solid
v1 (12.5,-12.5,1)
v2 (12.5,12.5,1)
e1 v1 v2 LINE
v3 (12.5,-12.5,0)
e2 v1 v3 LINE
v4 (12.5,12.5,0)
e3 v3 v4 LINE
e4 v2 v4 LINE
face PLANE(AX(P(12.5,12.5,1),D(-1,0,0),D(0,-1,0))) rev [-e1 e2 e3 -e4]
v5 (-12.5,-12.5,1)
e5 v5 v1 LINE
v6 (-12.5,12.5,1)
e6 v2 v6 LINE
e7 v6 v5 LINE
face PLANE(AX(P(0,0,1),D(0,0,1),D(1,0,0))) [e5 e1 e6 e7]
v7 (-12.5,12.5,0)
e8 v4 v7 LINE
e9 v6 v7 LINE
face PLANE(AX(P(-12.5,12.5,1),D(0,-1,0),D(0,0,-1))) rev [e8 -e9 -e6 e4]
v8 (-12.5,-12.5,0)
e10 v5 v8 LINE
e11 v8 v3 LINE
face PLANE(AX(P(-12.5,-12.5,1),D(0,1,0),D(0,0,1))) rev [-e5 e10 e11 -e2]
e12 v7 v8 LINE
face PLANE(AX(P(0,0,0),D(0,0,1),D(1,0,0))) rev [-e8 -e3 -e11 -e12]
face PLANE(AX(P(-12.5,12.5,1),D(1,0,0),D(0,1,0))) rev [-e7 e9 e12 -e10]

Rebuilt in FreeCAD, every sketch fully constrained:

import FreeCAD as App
import Part
import Sketcher

V = App.Vector

doc = App.newDocument("Part")
body = doc.addObject("PartDesign::Body", "Body")

# Sketch on XY plane
sketch1 = body.newObject("Sketcher::SketchObject", "Sketch")
sketch1.AttachmentSupport = (doc.getObject("XY_Plane"), [""])
sketch1.MapMode = "FlatFace"
sketch1.addGeometry([
    Part.LineSegment(V(-12, 12, 0), V(-12, -12, 0)),
    Part.LineSegment(V(-12, -12, 0), V(12, -12, 0)),
    Part.LineSegment(V(12, -12, 0), V(12, 12, 0)),
    Part.LineSegment(V(12, 12, 0), V(-12, 12, 0)),
], False)
sketch1.addConstraint([
    Sketcher.Constraint("Coincident", 0, 2, 1, 1),
    Sketcher.Constraint("Coincident", 1, 2, 2, 1),
    Sketcher.Constraint("Coincident", 2, 2, 3, 1),
    Sketcher.Constraint("Coincident", 3, 2, 0, 1),
    Sketcher.Constraint("Vertical", 0),
    Sketcher.Constraint("Horizontal", 1),
    Sketcher.Constraint("Vertical", 2),
    Sketcher.Constraint("Horizontal", 3),
    Sketcher.Constraint("Symmetric", 0, 2, 2, 2, -1, 1),
    Sketcher.Constraint("Equal", 3, 0),
    Sketcher.Constraint("DistanceX", 1, 1, 1, 2, 25.0),
])
pad1 = body.newObject("PartDesign::Pad", "Pad")
pad1.Profile = sketch1
pad1.Length = 1

doc.recompute()
